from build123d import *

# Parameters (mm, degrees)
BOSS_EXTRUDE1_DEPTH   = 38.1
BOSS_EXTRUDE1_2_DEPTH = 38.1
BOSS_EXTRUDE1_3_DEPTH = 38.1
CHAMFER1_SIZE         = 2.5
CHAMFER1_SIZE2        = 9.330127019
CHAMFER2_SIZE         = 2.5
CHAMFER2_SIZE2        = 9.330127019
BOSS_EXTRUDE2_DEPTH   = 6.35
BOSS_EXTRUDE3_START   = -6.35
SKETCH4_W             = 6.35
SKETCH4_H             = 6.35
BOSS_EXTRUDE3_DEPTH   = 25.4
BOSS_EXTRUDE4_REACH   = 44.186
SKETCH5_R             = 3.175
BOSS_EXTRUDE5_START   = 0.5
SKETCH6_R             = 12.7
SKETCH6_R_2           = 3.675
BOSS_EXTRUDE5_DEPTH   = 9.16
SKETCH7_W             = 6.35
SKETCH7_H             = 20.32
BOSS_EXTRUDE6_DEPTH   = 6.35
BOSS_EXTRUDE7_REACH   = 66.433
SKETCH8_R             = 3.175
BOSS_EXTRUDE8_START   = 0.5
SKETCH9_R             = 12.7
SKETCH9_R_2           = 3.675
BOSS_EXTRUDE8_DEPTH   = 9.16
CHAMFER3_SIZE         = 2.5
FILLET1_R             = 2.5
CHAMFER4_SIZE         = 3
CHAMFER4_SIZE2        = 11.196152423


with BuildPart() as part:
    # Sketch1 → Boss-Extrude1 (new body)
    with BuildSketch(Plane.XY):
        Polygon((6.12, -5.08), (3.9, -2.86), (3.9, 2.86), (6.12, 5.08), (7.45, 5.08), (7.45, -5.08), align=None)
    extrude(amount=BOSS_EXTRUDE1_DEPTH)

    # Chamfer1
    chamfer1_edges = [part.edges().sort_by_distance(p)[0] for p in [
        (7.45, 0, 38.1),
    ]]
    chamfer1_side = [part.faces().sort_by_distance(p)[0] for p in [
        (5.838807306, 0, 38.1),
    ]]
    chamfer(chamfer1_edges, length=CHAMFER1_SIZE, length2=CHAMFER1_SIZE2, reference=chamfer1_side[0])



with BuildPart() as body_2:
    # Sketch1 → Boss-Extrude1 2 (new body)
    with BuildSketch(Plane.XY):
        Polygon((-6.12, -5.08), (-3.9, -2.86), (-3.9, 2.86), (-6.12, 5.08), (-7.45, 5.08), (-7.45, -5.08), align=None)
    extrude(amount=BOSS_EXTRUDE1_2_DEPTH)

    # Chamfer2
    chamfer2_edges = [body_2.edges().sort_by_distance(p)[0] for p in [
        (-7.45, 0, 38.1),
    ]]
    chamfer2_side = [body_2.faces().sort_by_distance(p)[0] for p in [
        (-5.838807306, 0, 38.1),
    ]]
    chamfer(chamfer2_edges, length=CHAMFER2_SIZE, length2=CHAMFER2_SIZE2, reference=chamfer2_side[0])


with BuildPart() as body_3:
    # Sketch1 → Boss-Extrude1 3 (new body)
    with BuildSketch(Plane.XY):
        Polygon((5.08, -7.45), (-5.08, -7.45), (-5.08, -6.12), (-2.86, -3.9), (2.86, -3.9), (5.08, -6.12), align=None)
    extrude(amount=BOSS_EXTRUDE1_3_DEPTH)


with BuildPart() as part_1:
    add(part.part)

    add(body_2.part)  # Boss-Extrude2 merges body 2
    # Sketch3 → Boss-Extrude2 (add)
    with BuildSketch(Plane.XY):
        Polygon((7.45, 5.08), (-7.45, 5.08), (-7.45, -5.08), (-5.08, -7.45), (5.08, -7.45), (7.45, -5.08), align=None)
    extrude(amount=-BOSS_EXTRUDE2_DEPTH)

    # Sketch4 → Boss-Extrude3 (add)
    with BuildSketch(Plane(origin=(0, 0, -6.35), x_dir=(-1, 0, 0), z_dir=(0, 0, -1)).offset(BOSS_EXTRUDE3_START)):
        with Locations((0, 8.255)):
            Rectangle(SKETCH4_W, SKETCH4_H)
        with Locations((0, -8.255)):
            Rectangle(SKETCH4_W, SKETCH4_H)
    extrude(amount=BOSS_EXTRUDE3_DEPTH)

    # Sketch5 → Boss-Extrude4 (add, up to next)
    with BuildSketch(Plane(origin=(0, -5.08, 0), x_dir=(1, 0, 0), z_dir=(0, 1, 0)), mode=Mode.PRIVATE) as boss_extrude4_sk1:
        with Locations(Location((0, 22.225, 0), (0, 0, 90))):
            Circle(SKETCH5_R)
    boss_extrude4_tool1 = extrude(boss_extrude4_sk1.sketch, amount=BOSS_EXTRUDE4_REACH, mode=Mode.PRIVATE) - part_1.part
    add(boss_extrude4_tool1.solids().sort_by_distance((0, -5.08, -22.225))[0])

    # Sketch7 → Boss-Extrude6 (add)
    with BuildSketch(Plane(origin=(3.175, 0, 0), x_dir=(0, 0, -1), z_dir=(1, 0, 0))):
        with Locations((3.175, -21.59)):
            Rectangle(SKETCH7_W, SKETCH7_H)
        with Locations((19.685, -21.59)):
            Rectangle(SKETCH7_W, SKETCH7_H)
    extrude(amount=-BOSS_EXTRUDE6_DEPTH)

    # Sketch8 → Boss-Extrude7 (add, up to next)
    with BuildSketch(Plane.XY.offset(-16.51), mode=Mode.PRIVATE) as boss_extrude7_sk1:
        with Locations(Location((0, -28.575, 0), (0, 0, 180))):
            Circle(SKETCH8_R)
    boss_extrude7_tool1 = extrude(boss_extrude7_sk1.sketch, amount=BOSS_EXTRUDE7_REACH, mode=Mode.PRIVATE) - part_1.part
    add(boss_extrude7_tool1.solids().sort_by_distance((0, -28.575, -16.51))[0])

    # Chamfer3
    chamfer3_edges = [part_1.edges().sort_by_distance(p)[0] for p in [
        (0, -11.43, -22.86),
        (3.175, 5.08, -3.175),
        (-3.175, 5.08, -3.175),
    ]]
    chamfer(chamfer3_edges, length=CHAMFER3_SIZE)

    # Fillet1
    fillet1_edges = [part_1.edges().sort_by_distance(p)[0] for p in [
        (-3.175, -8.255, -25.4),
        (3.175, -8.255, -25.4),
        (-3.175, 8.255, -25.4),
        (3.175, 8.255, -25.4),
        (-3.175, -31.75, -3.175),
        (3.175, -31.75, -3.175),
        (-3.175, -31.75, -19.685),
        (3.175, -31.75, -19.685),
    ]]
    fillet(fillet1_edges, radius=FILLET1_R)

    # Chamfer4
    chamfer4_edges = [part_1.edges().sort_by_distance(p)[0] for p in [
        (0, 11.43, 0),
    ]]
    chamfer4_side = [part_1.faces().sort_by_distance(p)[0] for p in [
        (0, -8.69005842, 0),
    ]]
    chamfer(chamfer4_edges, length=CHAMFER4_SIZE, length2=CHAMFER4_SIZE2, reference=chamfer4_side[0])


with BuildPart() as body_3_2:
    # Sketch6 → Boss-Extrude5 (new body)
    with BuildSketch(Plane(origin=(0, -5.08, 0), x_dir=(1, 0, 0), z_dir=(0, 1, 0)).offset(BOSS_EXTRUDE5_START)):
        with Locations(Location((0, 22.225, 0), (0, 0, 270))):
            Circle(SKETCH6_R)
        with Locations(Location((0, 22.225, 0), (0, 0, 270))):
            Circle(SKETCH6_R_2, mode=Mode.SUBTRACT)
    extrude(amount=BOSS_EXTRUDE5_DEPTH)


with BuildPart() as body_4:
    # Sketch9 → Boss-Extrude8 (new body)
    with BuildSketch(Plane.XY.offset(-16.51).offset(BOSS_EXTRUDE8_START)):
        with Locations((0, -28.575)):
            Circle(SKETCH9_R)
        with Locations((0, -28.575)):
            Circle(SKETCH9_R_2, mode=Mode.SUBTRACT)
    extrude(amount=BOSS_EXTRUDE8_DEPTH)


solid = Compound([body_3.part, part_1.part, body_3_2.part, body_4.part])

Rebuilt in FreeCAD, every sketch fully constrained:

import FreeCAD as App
import Part
import Sketcher
Q = App.Units.Quantity


def edges_at(feature, points):
    """Names of the edges that pass closest to the given points."""
    edges = feature.Shape.Edges
    near = lambda p: min(range(len(edges)), key=lambda i: edges[i].distToShape(Part.Vertex(*p))[0])
    return sorted({f"Edge{near(p) + 1}" for p in points})


def add_polygon(sketch, points):
    """Adds a closed chain of lines whose ends are joined by coincident constraints."""
    first, n = sketch.GeometryCount, len(points)
    for a, b in zip(points, points[1:] + points[:1]):
        sketch.addGeometry(Part.LineSegment(App.Vector(*a, 0), App.Vector(*b, 0)), False)
    for i in range(n):
        sketch.addConstraint(Sketcher.Constraint("Coincident", first + i, 2, first + (i + 1) % n, 1))

doc = App.newDocument("Part")
body = doc.addObject("PartDesign::Body", "Body")

sketch1 = doc.addObject("Sketcher::SketchObject", "Sketch")
body.addObject(sketch1)
sketch1.AttachmentSupport = (doc.XY_Plane, [""])
sketch1.MapMode = "FlatFace"
add_polygon(sketch1, [(3.9, -2.9), (6.1, -5.1), (7.5, -5.1), (7.5, 5.1), (6.1, 5.1), (3.9, 2.9)])
sketch1.addConstraint(Sketcher.Constraint("Horizontal", 1))
sketch1.addConstraint(Sketcher.Constraint("Vertical", 2))
sketch1.addConstraint(Sketcher.Constraint("Horizontal", 3))
sketch1.addConstraint(Sketcher.Constraint("Vertical", 5))
sketch1.addConstraint(Sketcher.Constraint("Symmetric", 0, 2, 3, 2, -1))
sketch1.addConstraint(Sketcher.Constraint("Perpendicular", 0, 4))
sketch1.addConstraint(Sketcher.Constraint("Equal", 0, 4))
sketch1.addConstraint(Sketcher.Constraint("DistanceY", 2, 1, 2, 2, Q("0.4 in")))
sketch1.addConstraint(Sketcher.Constraint("DistanceX", 1, 1, 1, 2, 1.33))
sketch1.addConstraint(Sketcher.Constraint("DistanceY", 5, 2, 5, 1, 5.72))
sketch1.addConstraint(Sketcher.Constraint("DistanceX", -1, 1, 0, 2, 6.12))
pad1 = doc.addObject("PartDesign::Pad", "Pad")
body.addObject(pad1)
pad1.Profile = sketch1
pad1.Length = Q("1.5 in")
doc.recompute()

chamfer = doc.addObject("PartDesign::Chamfer", "Chamfer")
body.addObject(chamfer)
chamfer.Base = (pad1, edges_at(pad1, [(7.45, 0, 38.1)]))
chamfer.ChamferType = "Two distances"
chamfer.Size = 2.5
chamfer.Size2 = 9.330127
chamfer.FlipDirection = True
body2 = doc.addObject("PartDesign::Body", "Body001")

sketch2 = doc.addObject("Sketcher::SketchObject", "Sketch001")
body2.addObject(sketch2)
sketch2.AttachmentSupport = (doc.getObject("XY_Plane001"), [""])
sketch2.MapMode = "FlatFace"
add_polygon(sketch2, [(-6.1, -5.1), (-3.9, -2.9), (-3.9, 2.9), (-6.1, 5.1), (-7.5, 5.1), (-7.5, -5.1)])
sketch2.addConstraint(Sketcher.Constraint("Vertical", 1))
sketch2.addConstraint(Sketcher.Constraint("Horizontal", 3))
sketch2.addConstraint(Sketcher.Constraint("Vertical", 4))
sketch2.addConstraint(Sketcher.Constraint("Horizontal", 5))
sketch2.addConstraint(Sketcher.Constraint("Symmetric", 2, 2, 5, 2, -1))
sketch2.addConstraint(Sketcher.Constraint("Perpendicular", 0, 2))
sketch2.addConstraint(Sketcher.Constraint("Equal", 0, 2))
sketch2.addConstraint(Sketcher.Constraint("DistanceY", 4, 2, 4, 1, Q("0.4 in")))
sketch2.addConstraint(Sketcher.Constraint("DistanceX", 3, 2, 3, 1, 1.33))
sketch2.addConstraint(Sketcher.Constraint("DistanceY", 1, 1, 1, 2, 5.72))
sketch2.addConstraint(Sketcher.Constraint("DistanceX", 0, 2, -1, 1, 3.9))
pad2 = doc.addObject("PartDesign::Pad", "Pad001")
body2.addObject(pad2)
pad2.Profile = sketch2
pad2.Length = Q("1.5 in")
doc.recompute()

chamfer2 = doc.addObject("PartDesign::Chamfer", "Chamfer001")
body2.addObject(chamfer2)
chamfer2.Base = (pad2, edges_at(pad2, [(-7.45, 0, 38.1)]))
chamfer2.ChamferType = "Two distances"
chamfer2.Size = 2.5
chamfer2.Size2 = 9.330127
chamfer2.FlipDirection = True
body3 = doc.addObject("PartDesign::Body", "Body002")

sketch3 = doc.addObject("Sketcher::SketchObject", "Sketch002")
body3.addObject(sketch3)
sketch3.AttachmentSupport = (doc.getObject("XY_Plane002"), [""])
sketch3.MapMode = "FlatFace"
add_polygon(sketch3, [(-5.1, -7.5), (5.1, -7.5), (5.1, -6.1), (2.9, -3.9), (-2.9, -3.9), (-5.1, -6.1)])
sketch3.addConstraint(Sketcher.Constraint("Horizontal", 0))
sketch3.addConstraint(Sketcher.Constraint("Vertical", 1))
sketch3.addConstraint(Sketcher.Constraint("Horizontal", 3))
sketch3.addConstraint(Sketcher.Constraint("Vertical", 5))
sketch3.addConstraint(Sketcher.Constraint("Symmetric", 1, 2, 4, 2, -2))
sketch3.addConstraint(Sketcher.Constraint("Perpendicular", 2, 4))
sketch3.addConstraint(Sketcher.Constraint("Equal", 2, 4))
sketch3.addConstraint(Sketcher.Constraint("DistanceX", 0, 1, 0, 2, Q("0.4 in")))
sketch3.addConstraint(Sketcher.Constraint("DistanceX", 3, 2, 3, 1, 5.72))
sketch3.addConstraint(Sketcher.Constraint("DistanceY", 1, 1, 1, 2, 1.33))
sketch3.addConstraint(Sketcher.Constraint("DistanceY", 0, 2, -1, 1, 7.45))
pad3 = doc.addObject("PartDesign::Pad", "Pad002")
body3.addObject(pad3)
pad3.Profile = sketch3
pad3.Length = Q("1.5 in")
body.AllowCompound = True
doc.recompute()

boolean = doc.addObject("PartDesign::Boolean", "Boolean")
body.addObject(boolean)
boolean.Type = "Fuse"
boolean.addObjects([body2])

sketch4 = doc.addObject("Sketcher::SketchObject", "Sketch003")
body.addObject(sketch4)
sketch4.AttachmentSupport = (doc.XY_Plane, [""])
sketch4.MapMode = "FlatFace"
add_polygon(sketch4, [(7.5, 5.1), (-7.5, 5.1), (-7.5, -5.1), (-5.1, -7.5), (5.1, -7.5), (7.5, -5.1)])
sketch4.addConstraint(Sketcher.Constraint("Horizontal", 0))
sketch4.addConstraint(Sketcher.Constraint("Vertical", 1))
sketch4.addConstraint(Sketcher.Constraint("Horizontal", 3))
sketch4.addConstraint(Sketcher.Constraint("Vertical", 5))
sketch4.addConstraint(Sketcher.Constraint("Symmetric", 0, 2, 4, 2, -1, 1))
sketch4.addConstraint(Sketcher.Constraint("Perpendicular", 2, 4))
sketch4.addConstraint(Sketcher.Constraint("Horizontal", 1, 2, 4, 2))
sketch4.addConstraint(Sketcher.Constraint("Equal", 3, 1))
sketch4.addConstraint(Sketcher.Constraint("Equal", 2, 4))
sketch4.addConstraint(Sketcher.Constraint("DistanceX", 3, 1, 3, 2, Q("0.4 in")))
sketch4.addConstraint(Sketcher.Constraint("DistanceX", 0, 2, 0, 1, 14.9))
pad4 = doc.addObject("PartDesign::Pad", "Pad003")
body.addObject(pad4)
pad4.Profile = sketch4
pad4.Length = Q("0.25 in")
pad4.Reversed = True

sketch5 = doc.addObject("Sketcher::SketchObject", "Sketch004")
body.addObject(sketch5)
sketch5.AttachmentSupport = (doc.XY_Plane, [""])
sketch5.MapMode = "FlatFace"
add_polygon(sketch5, [(3, 11), (3, 5), (-3, 5), (-3, 11)])
add_polygon(sketch5, [(3, -5), (3, -11), (-3, -11), (-3, -5)])
sketch5.addConstraint(Sketcher.Constraint("Vertical", 0))
sketch5.addConstraint(Sketcher.Constraint("Horizontal", 1))
sketch5.addConstraint(Sketcher.Constraint("Vertical", 2))
sketch5.addConstraint(Sketcher.Constraint("Horizontal", 3))
sketch5.addConstraint(Sketcher.Constraint("Vertical", 4))
sketch5.addConstraint(Sketcher.Constraint("Horizontal", 5))
sketch5.addConstraint(Sketcher.Constraint("Vertical", 6))
sketch5.addConstraint(Sketcher.Constraint("Horizontal", 7))
sketch5.addConstraint(Sketcher.Constraint("Symmetric", 2, 2, 4, 2, -1, 1))
sketch5.addConstraint(Sketcher.Constraint("Symmetric", 0, 2, 6, 2, -1, 1))
sketch5.addConstraint(Sketcher.Constraint("Vertical", 3, 2, 4, 2))
sketch5.addConstraint(Sketcher.Constraint("Equal", 7, 0))
sketch5.addConstraint(Sketcher.Constraint("DistanceX", 1, 2, 1, 1, Q("0.25 in")))
sketch5.addConstraint(Sketcher.Constraint("DistanceY", -1, 1, 0, 2, Q("0.2 in")))
pad5 = doc.addObject("PartDesign::Pad", "Pad004")
body.addObject(pad5)
pad5.Profile = sketch5
pad5.Length = Q("1 in")
pad5.Reversed = True

sketch6 = doc.addObject("Sketcher::SketchObject", "Sketch005")
body.addObject(sketch6)
sketch6.AttachmentSupport = (doc.XZ_Plane, [""])
sketch6.MapMode = "FlatFace"
sketch6.AttachmentOffset = App.Placement(App.Vector(0, 0, 0.2 * 25.4), App.Rotation())
sketch6.addGeometry(Part.Circle(App.Vector(0, -22.2, 0), App.Vector(0, 0, 1), 3.2), False)
sketch6.addConstraint(Sketcher.Constraint("PointOnObject", 0, 3, -2))
sketch6.addConstraint(Sketcher.Constraint("Diameter", 0, Q("0.25 in")))
sketch6.addConstraint(Sketcher.Constraint("DistanceY", 0, 3, -1, 1, Q("0.875 in")))
pad6 = doc.addObject("PartDesign::Pad", "Pad005")
body.addObject(pad6)
pad6.Profile = sketch6
pad6.Type = "UpToFirst"
pad6.Reversed = True

sketch7 = doc.addObject("Sketcher::SketchObject", "Sketch006")
body.addObject(sketch7)
sketch7.AttachmentSupport = (doc.YZ_Plane, [""])
sketch7.MapMode = "FlatFace"
sketch7.AttachmentOffset = App.Placement(App.Vector(0, 0, 0.125 * 25.4), App.Rotation())
add_polygon(sketch7, [(-11, 0), (-32, 0), (-32, -6), (-11, -6)])
add_polygon(sketch7, [(-11, -17), (-32, -17), (-32, -23), (-11, -23)])
sketch7.addConstraint(Sketcher.Constraint("Horizontal", 0))
sketch7.addConstraint(Sketcher.Constraint("Vertical", 1))
sketch7.addConstraint(Sketcher.Constraint("Horizontal", 2))
sketch7.addConstraint(Sketcher.Constraint("Vertical", 3))
sketch7.addConstraint(Sketcher.Constraint("Horizontal", 4))
sketch7.addConstraint(Sketcher.Constraint("Vertical", 5))
sketch7.addConstraint(Sketcher.Constraint("Horizontal", 6))
sketch7.addConstraint(Sketcher.Constraint("Vertical", 7))
sketch7.addConstraint(Sketcher.Constraint("PointOnObject", 0, 2, -1))
sketch7.addConstraint(Sketcher.Constraint("Vertical", 1, 2, 4, 2))
sketch7.addConstraint(Sketcher.Constraint("Vertical", 3, 2, 6, 2))
sketch7.addConstraint(Sketcher.Constraint("Equal", 3, 5))
sketch7.addConstraint(Sketcher.Constraint("DistanceX", 0, 2, 0, 1, Q("0.8 in")))
sketch7.addConstraint(Sketcher.Constraint("DistanceY", 1, 2, 1, 1, Q("0.25 in")))
sketch7.addConstraint(Sketcher.Constraint("DistanceY", 5, 2, -1, 1, Q("0.9 in")))
sketch7.addConstraint(Sketcher.Constraint("DistanceX", 0, 2, -1, 1, Q("1.25 in")))
pad7 = doc.addObject("PartDesign::Pad", "Pad006")
body.addObject(pad7)
pad7.Profile = sketch7
pad7.Length = Q("0.25 in")
pad7.Reversed = True

sketch8 = doc.addObject("Sketcher::SketchObject", "Sketch007")
body.addObject(sketch8)
sketch8.AttachmentSupport = (doc.XY_Plane, [""])
sketch8.MapMode = "FlatFace"
sketch8.AttachmentOffset = App.Placement(App.Vector(0, 0, -0.65 * 25.4), App.Rotation())
sketch8.addGeometry(Part.Circle(App.Vector(0, -28.6, 0), App.Vector(0, 0, 1), 3.2), False)
sketch8.addConstraint(Sketcher.Constraint("PointOnObject", 0, 3, -2))
sketch8.addConstraint(Sketcher.Constraint("Diameter", 0, Q("0.25 in")))
sketch8.addConstraint(Sketcher.Constraint("DistanceY", 0, 3, -1, 1, Q("1.125 in")))
pad8 = doc.addObject("PartDesign::Pad", "Pad007")
body.addObject(pad8)
pad8.Profile = sketch8
pad8.Type = "UpToFirst"
doc.recompute()

chamfer3 = doc.addObject("PartDesign::Chamfer", "Chamfer002")
body.addObject(chamfer3)
chamfer3.Base = (pad8, edges_at(pad8, [(0, -11.43, -22.86), (3.175, 5.08, -3.175), (-3.175, 5.08, -3.175)]))
chamfer3.Size = 2.5
doc.recompute()

fillet = doc.addObject("PartDesign::Fillet", "Fillet")
body.addObject(fillet)
fillet.Base = (chamfer3, edges_at(chamfer3, [
    (-3.175, -8.255, -25.4),
    (3.175, -8.255, -25.4),
    (-3.175, 8.255, -25.4),
    (3.175, 8.255, -25.4),
    (-3.175, -31.75, -3.175),
    (3.175, -31.75, -3.175),
    (-3.175, -31.75, -19.685),
    (3.175, -31.75, -19.685),
]))
fillet.Radius = 2.5
doc.recompute()

chamfer4 = doc.addObject("PartDesign::Chamfer", "Chamfer003")
body.addObject(chamfer4)
chamfer4.Base = (fillet, edges_at(fillet, [(0, 11.43, 0)]))
chamfer4.ChamferType = "Two distances"
chamfer4.Size = 3
chamfer4.Size2 = 11.196152
body4 = doc.addObject("PartDesign::Body", "Body003")

sketch9 = doc.addObject("Sketcher::SketchObject", "Sketch008")
body4.addObject(sketch9)
sketch9.AttachmentSupport = (doc.getObject("XZ_Plane003"), [""])
sketch9.MapMode = "FlatFace"
sketch9.AttachmentOffset = App.Placement(App.Vector(0, 0, 4.58), App.Rotation())
sketch9.addGeometry(Part.Circle(App.Vector(0, -22.2, 0), App.Vector(0, 0, 1), 12.7), False)
sketch9.addGeometry(Part.Circle(App.Vector(0, -22.2, 0), App.Vector(0, 0, 1), 3.7), False)
sketch9.addConstraint(Sketcher.Constraint("Coincident", 1, 3, 0, 3))
sketch9.addConstraint(Sketcher.Constraint("PointOnObject", 0, 3, -2))
sketch9.addConstraint(Sketcher.Constraint("Diameter", 0, Q("1 in")))
sketch9.addConstraint(Sketcher.Constraint("Diameter", 1, 7.35))
sketch9.addConstraint(Sketcher.Constraint("DistanceY", 0, 3, -1, 1, Q("0.875 in")))
pad9 = doc.addObject("PartDesign::Pad", "Pad008")
body4.addObject(pad9)
pad9.Profile = sketch9
pad9.Length = 9.16
pad9.Reversed = True
body5 = doc.addObject("PartDesign::Body", "Body004")

sketch10 = doc.addObject("Sketcher::SketchObject", "Sketch009")
body5.addObject(sketch10)
sketch10.AttachmentSupport = (doc.getObject("XY_Plane004"), [""])
sketch10.MapMode = "FlatFace"
sketch10.AttachmentOffset = App.Placement(App.Vector(0, 0, -16.01), App.Rotation())
sketch10.addGeometry(Part.Circle(App.Vector(0, -28.6, 0), App.Vector(0, 0, 1), 12.7), False)
sketch10.addGeometry(Part.Circle(App.Vector(0, -28.6, 0), App.Vector(0, 0, 1), 3.7), False)
sketch10.addConstraint(Sketcher.Constraint("Coincident", 1, 3, 0, 3))
sketch10.addConstraint(Sketcher.Constraint("PointOnObject", 0, 3, -2))
sketch10.addConstraint(Sketcher.Constraint("Diameter", 0, Q("1 in")))
sketch10.addConstraint(Sketcher.Constraint("Diameter", 1, 7.35))
sketch10.addConstraint(Sketcher.Constraint("DistanceY", 0, 3, -1, 1, Q("1.125 in")))
pad10 = doc.addObject("PartDesign::Pad", "Pad009")
body5.addObject(pad10)
pad10.Profile = sketch10
pad10.Length = 9.16

doc.recompute()
